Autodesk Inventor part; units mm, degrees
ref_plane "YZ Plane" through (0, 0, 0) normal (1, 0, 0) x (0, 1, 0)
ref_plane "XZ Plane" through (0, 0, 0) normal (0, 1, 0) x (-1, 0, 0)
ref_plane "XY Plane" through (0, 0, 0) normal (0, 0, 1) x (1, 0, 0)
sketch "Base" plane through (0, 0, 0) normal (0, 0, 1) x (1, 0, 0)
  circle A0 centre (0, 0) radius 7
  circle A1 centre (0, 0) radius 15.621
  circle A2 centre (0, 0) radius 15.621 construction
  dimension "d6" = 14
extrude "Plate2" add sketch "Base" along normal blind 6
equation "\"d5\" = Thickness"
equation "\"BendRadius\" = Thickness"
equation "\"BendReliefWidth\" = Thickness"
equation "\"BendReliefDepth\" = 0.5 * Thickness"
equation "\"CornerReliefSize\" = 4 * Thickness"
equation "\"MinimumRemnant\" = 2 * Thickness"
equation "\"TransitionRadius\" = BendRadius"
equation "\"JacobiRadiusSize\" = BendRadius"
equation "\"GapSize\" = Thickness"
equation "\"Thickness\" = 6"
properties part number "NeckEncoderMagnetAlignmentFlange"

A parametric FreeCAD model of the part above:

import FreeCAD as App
import Part
import Sketcher
from FreeCAD import Vector
Q = App.Units.Quantity

doc = App.newDocument("Part")
params = doc.addObject("Spreadsheet::Sheet", "Params")
for row, (alias, value) in enumerate([
    ("sketch1_diameter", "14 mm"),
    ("pad1_length", "6 mm"),
], start=1):
    params.set(f"A{row}", alias)
    params.set(f"B{row}", "=" + value)
    params.setAlias(f"B{row}", alias)

body = doc.addObject("PartDesign::Body", "Body")

sketch1 = body.newObject("Sketcher::SketchObject", "Sketch")
sketch1.AttachmentSupport = (doc.getObject("XY_Plane"), [""])
sketch1.MapMode = "FlatFace"
sketch1.addGeometry([
    Part.Circle(Vector(0, 0, 0), Vector(0, 0, 1), 16),
    Part.Circle(Vector(0, 0, 0), Vector(0, 0, 1), 7),
], False)
sketch1.addConstraint([
    Sketcher.Constraint("Coincident", 0, 3, -1, 1),
    Sketcher.Constraint("Coincident", 1, 3, -1, 1),
    Sketcher.Constraint("Diameter", 1, Q("14 mm")),
    Sketcher.Constraint("Diameter", 0, Q("31.242 mm")),
])
sketch1.setExpression("Constraints[2]", "Params.sketch1_diameter")
pad1 = body.newObject("PartDesign::Pad", "Pad")
pad1.Profile = sketch1
pad1.setExpression("Length", "Params.pad1_length")

doc.recompute()
